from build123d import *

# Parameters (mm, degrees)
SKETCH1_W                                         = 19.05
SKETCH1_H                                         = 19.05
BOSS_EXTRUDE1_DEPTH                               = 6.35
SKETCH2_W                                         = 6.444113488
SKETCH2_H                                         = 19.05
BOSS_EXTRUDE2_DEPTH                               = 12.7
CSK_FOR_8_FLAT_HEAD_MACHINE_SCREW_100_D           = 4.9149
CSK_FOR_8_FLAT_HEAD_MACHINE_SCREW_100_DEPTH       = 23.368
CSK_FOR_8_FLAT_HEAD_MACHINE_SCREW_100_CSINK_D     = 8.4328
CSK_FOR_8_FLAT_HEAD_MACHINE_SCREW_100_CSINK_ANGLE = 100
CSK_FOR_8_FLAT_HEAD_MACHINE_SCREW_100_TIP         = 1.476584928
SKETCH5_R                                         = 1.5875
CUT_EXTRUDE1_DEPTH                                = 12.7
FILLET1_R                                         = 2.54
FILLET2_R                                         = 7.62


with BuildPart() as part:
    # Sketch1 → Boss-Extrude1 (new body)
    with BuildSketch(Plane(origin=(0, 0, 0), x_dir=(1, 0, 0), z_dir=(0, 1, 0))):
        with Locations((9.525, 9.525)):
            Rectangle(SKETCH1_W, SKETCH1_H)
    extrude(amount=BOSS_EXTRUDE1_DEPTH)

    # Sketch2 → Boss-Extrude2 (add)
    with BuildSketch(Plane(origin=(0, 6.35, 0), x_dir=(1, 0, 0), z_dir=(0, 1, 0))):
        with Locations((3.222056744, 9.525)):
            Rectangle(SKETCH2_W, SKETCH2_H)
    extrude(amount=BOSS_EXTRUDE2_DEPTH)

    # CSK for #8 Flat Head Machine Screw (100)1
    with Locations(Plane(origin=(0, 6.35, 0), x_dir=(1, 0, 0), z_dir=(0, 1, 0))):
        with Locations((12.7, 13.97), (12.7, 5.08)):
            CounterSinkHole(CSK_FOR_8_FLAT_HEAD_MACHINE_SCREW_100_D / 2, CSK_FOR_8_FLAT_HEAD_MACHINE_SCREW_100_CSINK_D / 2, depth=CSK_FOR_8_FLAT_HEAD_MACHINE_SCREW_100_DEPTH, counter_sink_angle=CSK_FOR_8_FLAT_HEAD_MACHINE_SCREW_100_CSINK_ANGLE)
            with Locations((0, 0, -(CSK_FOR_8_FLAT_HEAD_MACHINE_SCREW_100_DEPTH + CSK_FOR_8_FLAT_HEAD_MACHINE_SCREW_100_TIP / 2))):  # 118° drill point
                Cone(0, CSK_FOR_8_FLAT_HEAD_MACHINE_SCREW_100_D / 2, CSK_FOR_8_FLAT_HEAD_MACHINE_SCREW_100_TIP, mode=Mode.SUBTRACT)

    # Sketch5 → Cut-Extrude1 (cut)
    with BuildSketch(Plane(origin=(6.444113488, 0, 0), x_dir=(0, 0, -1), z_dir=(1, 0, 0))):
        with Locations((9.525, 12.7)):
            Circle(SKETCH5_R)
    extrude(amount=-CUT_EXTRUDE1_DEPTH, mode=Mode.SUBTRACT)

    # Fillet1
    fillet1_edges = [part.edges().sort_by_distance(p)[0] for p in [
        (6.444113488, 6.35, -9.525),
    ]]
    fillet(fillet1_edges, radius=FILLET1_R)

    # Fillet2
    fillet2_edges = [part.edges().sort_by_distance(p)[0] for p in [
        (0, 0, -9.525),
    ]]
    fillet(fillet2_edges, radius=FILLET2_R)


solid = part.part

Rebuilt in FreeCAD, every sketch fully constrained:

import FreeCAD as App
import Part
import Sketcher
from FreeCAD import Vector
Q = App.Units.Quantity


def edges_at(feature, points):
    """Names of the edges that pass closest to the given points."""
    edges = feature.Shape.Edges
    near = lambda p: min(range(len(edges)), key=lambda i: edges[i].distToShape(Part.Vertex(*p))[0])
    return sorted({f"Edge{near(p) + 1}" for p in points})


def add_polygon(sketch, points):
    """Adds a closed chain of lines whose ends are joined by coincident constraints."""
    first, n = sketch.GeometryCount, len(points)
    for a, b in zip(points, points[1:] + points[:1]):
        sketch.addGeometry(Part.LineSegment(App.Vector(*a, 0), App.Vector(*b, 0)), False)
    for i in range(n):
        sketch.addConstraint(Sketcher.Constraint("Coincident", first + i, 2, first + (i + 1) % n, 1))

doc = App.newDocument("Part")
params = doc.addObject("Spreadsheet::Sheet", "Params")
for row, (alias, value) in enumerate([
    ("sketch1_width", "0.75 in"),
    ("pad1_length", "0.25 in"),
    ("sketch2_height", "0.75 in"),
    ("pad2_length", "0.5 in"),
    ("hole_diameter", "0.1935 in"),
    ("hole_depth", "0.92 in"),
    ("hole_csink_diameter", "0.332 in"),
    ("sketch4_diameter", "0.125 in"),
    ("pocket1_length", "0.5 in"),
    ("fillet_radius", "0.1 in"),
    ("fillet2_radius", "0.3 in"),
], start=1):
    params.set(f"A{row}", alias)
    params.set(f"B{row}", "=" + value)
    params.setAlias(f"B{row}", alias)

body = doc.addObject("PartDesign::Body", "Body")

sketch1 = body.newObject("Sketcher::SketchObject", "Sketch")
sketch1.AttachmentSupport = (doc.getObject("XZ_Plane"), [""])
sketch1.MapMode = "FlatFace"
add_polygon(sketch1, [(0, -19), (0, 0), (19, 0), (19, -19)])
sketch1.addConstraint([
    Sketcher.Constraint("Vertical", 0),
    Sketcher.Constraint("Horizontal", 1),
    Sketcher.Constraint("Vertical", 2),
    Sketcher.Constraint("Horizontal", 3),
    Sketcher.Constraint("Coincident", 0, 2, -1, 1),
    Sketcher.Constraint("Equal", 3, 0),
    Sketcher.Constraint("DistanceX", 1, 1, 1, 2, Q("0.75 in")),
])
sketch1.setExpression("Constraints[10]", "Params.sketch1_width")
pad1 = body.newObject("PartDesign::Pad", "Pad")
pad1.Profile = sketch1
pad1.setExpression("Length", "Params.pad1_length")
pad1.Reversed = True

sketch2 = body.newObject("Sketcher::SketchObject", "Sketch001")
sketch2.AttachmentSupport = (doc.getObject("XZ_Plane"), [""])
sketch2.MapMode = "FlatFace"
sketch2.AttachmentOffset = App.Placement(Vector(0, 0, -0.25 * 25.4), App.Rotation())
add_polygon(sketch2, [(0, -19), (0, 0), (6, 0), (6, -19)])
sketch2.addConstraint([
    Sketcher.Constraint("Vertical", 0),
    Sketcher.Constraint("Horizontal", 1),
    Sketcher.Constraint("Vertical", 2),
    Sketcher.Constraint("Horizontal", 3),
    Sketcher.Constraint("Coincident", 0, 2, -1, 1),
    Sketcher.Constraint("DistanceY", 0, 1, 0, 2, Q("0.75 in")),
    Sketcher.Constraint("DistanceX", 1, 1, 1, 2, 6.444113),
])
sketch2.setExpression("Constraints[9]", "Params.sketch2_height")
pad2 = body.newObject("PartDesign::Pad", "Pad001")
pad2.Profile = sketch2
pad2.setExpression("Length", "Params.pad2_length")
pad2.Reversed = True

sketch3 = body.newObject("Sketcher::SketchObject", "Sketch002")
sketch3.AttachmentSupport = (doc.getObject("XZ_Plane"), [""])
sketch3.MapMode = "FlatFace"
sketch3.AttachmentOffset = App.Placement(Vector(0, 0, -0.25 * 25.4), App.Rotation())
sketch3.addGeometry([
    Part.Circle(Vector(12.7, -14, 0), Vector(0, 0, 1), 2.5),
    Part.Circle(Vector(12.7, -5.1, 0), Vector(0, 0, 1), 2.5),
], False)
sketch3.addConstraint([
    Sketcher.Constraint("Equal", 0, 1),
    Sketcher.Constraint("Vertical", 0, 3, 1, 3),
    Sketcher.Constraint("Diameter", 0, Q("0.1935 in")),
    Sketcher.Constraint("DistanceX", -1, 1, 0, 3, Q("0.5 in")),
    Sketcher.Constraint("DistanceY", 1, 3, -1, 1, Q("0.2 in")),
    Sketcher.Constraint("DistanceY", 0, 3, -1, 1, Q("0.55 in")),
])
doc.recompute()
hole = body.newObject("PartDesign::Hole", "Hole")
hole.Profile = sketch3
hole.ThreadType = "None"
hole.setExpression("Diameter", "Params.hole_diameter")
hole.DepthType = "Dimension"
hole.setExpression("Depth", "Params.hole_depth")
hole.DrillPoint = "Angled"
hole.DrillPointAngle = 118
hole.HoleCutType = "Countersink"
hole.setExpression("HoleCutDiameter", "Params.hole_csink_diameter")
hole.HoleCutCountersinkAngle = 100
hole.Reversed = True

sketch4 = body.newObject("Sketcher::SketchObject", "Sketch003")
sketch4.AttachmentSupport = (doc.getObject("YZ_Plane"), [""])
sketch4.MapMode = "FlatFace"
sketch4.AttachmentOffset = App.Placement(Vector(0, 0, 6.444113), App.Rotation())
sketch4.addGeometry(Part.Circle(Vector(12.7, -9.5, 0), Vector(0, 0, 1), 1.6), False)
sketch4.addConstraint([
    Sketcher.Constraint("Diameter", 0, Q("0.125 in")),
    Sketcher.Constraint("DistanceX", -1, 1, 0, 3, Q("0.5 in")),
    Sketcher.Constraint("DistanceY", 0, 3, -1, 1, Q("0.375 in")),
])
sketch4.setExpression("Constraints[0]", "Params.sketch4_diameter")
pocket1 = body.newObject("PartDesign::Pocket", "Pocket")
pocket1.Profile = sketch4
pocket1.setExpression("Length", "Params.pocket1_length")
doc.recompute()

fillet = body.newObject("PartDesign::Fillet", "Fillet")
fillet.Base = (pocket1, edges_at(pocket1, [(6.444, 6.35, -9.525)]))
fillet.setExpression("Radius", "Params.fillet_radius")
doc.recompute()

fillet2 = body.newObject("PartDesign::Fillet", "Fillet001")
fillet2.Base = (fillet, edges_at(fillet, [(0, 0, -9.525)]))
fillet2.setExpression("Radius", "Params.fillet2_radius")

doc.recompute()
